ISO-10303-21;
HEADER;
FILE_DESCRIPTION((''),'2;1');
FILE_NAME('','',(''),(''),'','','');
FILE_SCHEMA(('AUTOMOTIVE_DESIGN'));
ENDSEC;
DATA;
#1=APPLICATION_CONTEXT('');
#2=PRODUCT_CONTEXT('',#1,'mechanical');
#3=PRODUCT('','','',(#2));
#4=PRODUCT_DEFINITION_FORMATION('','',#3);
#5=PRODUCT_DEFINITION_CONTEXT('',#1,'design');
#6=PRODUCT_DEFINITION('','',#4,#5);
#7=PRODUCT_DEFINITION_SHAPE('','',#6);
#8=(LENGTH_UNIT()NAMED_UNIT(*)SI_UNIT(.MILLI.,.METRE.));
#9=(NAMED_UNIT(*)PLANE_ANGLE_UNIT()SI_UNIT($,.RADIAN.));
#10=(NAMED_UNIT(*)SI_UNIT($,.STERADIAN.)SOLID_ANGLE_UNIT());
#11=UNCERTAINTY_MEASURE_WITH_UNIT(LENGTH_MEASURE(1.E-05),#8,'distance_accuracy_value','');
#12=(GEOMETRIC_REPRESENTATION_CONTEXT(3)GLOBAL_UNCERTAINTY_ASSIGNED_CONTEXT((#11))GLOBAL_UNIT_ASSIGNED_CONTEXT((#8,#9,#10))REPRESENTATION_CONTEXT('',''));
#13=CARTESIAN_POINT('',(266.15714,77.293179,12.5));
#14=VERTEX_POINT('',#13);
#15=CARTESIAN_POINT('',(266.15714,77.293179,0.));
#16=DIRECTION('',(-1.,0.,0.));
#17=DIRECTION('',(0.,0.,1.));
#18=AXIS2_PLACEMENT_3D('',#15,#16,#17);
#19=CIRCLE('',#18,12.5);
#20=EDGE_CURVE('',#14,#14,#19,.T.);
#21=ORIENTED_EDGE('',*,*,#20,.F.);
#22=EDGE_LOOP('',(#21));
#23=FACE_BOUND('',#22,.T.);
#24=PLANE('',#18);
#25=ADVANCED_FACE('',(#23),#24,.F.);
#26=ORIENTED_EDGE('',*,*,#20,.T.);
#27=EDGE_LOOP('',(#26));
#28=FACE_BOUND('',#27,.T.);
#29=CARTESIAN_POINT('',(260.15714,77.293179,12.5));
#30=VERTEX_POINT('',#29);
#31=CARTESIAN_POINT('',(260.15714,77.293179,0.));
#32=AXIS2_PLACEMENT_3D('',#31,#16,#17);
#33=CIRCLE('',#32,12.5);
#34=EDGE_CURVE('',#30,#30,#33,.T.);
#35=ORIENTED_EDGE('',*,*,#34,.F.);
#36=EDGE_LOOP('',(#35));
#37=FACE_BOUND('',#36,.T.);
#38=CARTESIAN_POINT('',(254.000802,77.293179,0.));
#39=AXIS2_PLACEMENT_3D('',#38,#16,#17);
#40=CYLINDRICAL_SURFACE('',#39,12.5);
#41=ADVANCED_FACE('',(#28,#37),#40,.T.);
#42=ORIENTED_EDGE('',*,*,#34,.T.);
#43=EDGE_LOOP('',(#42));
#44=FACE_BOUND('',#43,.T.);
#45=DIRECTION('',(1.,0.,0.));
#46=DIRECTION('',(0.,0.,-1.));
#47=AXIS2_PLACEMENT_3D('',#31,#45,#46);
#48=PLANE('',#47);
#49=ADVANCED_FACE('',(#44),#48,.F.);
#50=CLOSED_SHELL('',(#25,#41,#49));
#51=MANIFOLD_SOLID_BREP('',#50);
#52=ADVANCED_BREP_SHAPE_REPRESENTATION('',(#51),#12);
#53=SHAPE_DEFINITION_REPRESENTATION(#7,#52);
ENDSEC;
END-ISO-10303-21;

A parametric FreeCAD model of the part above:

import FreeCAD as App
import Part
import Sketcher
from FreeCAD import Vector

doc = App.newDocument("Part")
body = doc.addObject("PartDesign::Body", "Body")

# Sketch on XY plane
sketch1 = doc.addObject("Sketcher::SketchObject", "Sketch")
body.addObject(sketch1)
sketch1.AttachmentSupport = (doc.XY_Plane, [""])
sketch1.MapMode = "FlatFace"
sketch1.addGeometry([
    Part.LineSegment(Vector(260.15714, 89.793179, 0), Vector(260.15714, 77.293179, 0)),
    Part.LineSegment(Vector(260.15714, 77.293179, 0), Vector(266.15714, 77.293179, 0)),
    Part.LineSegment(Vector(266.15714, 77.293179, 0), Vector(266.15714, 89.793179, 0)),
    Part.LineSegment(Vector(266.15714, 89.793179, 0), Vector(260.15714, 89.793179, 0)),
], False)
sketch1.addGeometry(Part.LineSegment(Vector(260.15714, 77.293179, 0), Vector(266.15714, 77.293179, 0)), True)  # axis
sketch1.addConstraint([
    Sketcher.Constraint("Coincident", 0, 2, 1, 1),
    Sketcher.Constraint("Coincident", 1, 2, 2, 1),
    Sketcher.Constraint("Coincident", 2, 2, 3, 1),
    Sketcher.Constraint("Coincident", 3, 2, 0, 1),
    Sketcher.Constraint("Vertical", 0),
    Sketcher.Constraint("Horizontal", 1),
    Sketcher.Constraint("Vertical", 2),
    Sketcher.Constraint("Horizontal", 3),
    Sketcher.Constraint("Horizontal", 4),
    Sketcher.Constraint("Coincident", 4, 1, 0, 2),
    Sketcher.Constraint("Vertical", 2, 2, 4, 2),
    Sketcher.Constraint("DistanceX", 1, 1, 1, 2, 6.0),
    Sketcher.Constraint("DistanceY", 0, 2, 0, 1, 12.5),
    Sketcher.Constraint("DistanceX", -1, 1, 0, 2, 260.15714),
    Sketcher.Constraint("DistanceY", -1, 1, 0, 2, 77.293179),
])
revolution = doc.addObject("PartDesign::Revolution", "Revolution")
body.addObject(revolution)
revolution.Profile = sketch1
revolution.ReferenceAxis = (sketch1, ["Axis0"])
revolution.Angle = 360

doc.recompute()
